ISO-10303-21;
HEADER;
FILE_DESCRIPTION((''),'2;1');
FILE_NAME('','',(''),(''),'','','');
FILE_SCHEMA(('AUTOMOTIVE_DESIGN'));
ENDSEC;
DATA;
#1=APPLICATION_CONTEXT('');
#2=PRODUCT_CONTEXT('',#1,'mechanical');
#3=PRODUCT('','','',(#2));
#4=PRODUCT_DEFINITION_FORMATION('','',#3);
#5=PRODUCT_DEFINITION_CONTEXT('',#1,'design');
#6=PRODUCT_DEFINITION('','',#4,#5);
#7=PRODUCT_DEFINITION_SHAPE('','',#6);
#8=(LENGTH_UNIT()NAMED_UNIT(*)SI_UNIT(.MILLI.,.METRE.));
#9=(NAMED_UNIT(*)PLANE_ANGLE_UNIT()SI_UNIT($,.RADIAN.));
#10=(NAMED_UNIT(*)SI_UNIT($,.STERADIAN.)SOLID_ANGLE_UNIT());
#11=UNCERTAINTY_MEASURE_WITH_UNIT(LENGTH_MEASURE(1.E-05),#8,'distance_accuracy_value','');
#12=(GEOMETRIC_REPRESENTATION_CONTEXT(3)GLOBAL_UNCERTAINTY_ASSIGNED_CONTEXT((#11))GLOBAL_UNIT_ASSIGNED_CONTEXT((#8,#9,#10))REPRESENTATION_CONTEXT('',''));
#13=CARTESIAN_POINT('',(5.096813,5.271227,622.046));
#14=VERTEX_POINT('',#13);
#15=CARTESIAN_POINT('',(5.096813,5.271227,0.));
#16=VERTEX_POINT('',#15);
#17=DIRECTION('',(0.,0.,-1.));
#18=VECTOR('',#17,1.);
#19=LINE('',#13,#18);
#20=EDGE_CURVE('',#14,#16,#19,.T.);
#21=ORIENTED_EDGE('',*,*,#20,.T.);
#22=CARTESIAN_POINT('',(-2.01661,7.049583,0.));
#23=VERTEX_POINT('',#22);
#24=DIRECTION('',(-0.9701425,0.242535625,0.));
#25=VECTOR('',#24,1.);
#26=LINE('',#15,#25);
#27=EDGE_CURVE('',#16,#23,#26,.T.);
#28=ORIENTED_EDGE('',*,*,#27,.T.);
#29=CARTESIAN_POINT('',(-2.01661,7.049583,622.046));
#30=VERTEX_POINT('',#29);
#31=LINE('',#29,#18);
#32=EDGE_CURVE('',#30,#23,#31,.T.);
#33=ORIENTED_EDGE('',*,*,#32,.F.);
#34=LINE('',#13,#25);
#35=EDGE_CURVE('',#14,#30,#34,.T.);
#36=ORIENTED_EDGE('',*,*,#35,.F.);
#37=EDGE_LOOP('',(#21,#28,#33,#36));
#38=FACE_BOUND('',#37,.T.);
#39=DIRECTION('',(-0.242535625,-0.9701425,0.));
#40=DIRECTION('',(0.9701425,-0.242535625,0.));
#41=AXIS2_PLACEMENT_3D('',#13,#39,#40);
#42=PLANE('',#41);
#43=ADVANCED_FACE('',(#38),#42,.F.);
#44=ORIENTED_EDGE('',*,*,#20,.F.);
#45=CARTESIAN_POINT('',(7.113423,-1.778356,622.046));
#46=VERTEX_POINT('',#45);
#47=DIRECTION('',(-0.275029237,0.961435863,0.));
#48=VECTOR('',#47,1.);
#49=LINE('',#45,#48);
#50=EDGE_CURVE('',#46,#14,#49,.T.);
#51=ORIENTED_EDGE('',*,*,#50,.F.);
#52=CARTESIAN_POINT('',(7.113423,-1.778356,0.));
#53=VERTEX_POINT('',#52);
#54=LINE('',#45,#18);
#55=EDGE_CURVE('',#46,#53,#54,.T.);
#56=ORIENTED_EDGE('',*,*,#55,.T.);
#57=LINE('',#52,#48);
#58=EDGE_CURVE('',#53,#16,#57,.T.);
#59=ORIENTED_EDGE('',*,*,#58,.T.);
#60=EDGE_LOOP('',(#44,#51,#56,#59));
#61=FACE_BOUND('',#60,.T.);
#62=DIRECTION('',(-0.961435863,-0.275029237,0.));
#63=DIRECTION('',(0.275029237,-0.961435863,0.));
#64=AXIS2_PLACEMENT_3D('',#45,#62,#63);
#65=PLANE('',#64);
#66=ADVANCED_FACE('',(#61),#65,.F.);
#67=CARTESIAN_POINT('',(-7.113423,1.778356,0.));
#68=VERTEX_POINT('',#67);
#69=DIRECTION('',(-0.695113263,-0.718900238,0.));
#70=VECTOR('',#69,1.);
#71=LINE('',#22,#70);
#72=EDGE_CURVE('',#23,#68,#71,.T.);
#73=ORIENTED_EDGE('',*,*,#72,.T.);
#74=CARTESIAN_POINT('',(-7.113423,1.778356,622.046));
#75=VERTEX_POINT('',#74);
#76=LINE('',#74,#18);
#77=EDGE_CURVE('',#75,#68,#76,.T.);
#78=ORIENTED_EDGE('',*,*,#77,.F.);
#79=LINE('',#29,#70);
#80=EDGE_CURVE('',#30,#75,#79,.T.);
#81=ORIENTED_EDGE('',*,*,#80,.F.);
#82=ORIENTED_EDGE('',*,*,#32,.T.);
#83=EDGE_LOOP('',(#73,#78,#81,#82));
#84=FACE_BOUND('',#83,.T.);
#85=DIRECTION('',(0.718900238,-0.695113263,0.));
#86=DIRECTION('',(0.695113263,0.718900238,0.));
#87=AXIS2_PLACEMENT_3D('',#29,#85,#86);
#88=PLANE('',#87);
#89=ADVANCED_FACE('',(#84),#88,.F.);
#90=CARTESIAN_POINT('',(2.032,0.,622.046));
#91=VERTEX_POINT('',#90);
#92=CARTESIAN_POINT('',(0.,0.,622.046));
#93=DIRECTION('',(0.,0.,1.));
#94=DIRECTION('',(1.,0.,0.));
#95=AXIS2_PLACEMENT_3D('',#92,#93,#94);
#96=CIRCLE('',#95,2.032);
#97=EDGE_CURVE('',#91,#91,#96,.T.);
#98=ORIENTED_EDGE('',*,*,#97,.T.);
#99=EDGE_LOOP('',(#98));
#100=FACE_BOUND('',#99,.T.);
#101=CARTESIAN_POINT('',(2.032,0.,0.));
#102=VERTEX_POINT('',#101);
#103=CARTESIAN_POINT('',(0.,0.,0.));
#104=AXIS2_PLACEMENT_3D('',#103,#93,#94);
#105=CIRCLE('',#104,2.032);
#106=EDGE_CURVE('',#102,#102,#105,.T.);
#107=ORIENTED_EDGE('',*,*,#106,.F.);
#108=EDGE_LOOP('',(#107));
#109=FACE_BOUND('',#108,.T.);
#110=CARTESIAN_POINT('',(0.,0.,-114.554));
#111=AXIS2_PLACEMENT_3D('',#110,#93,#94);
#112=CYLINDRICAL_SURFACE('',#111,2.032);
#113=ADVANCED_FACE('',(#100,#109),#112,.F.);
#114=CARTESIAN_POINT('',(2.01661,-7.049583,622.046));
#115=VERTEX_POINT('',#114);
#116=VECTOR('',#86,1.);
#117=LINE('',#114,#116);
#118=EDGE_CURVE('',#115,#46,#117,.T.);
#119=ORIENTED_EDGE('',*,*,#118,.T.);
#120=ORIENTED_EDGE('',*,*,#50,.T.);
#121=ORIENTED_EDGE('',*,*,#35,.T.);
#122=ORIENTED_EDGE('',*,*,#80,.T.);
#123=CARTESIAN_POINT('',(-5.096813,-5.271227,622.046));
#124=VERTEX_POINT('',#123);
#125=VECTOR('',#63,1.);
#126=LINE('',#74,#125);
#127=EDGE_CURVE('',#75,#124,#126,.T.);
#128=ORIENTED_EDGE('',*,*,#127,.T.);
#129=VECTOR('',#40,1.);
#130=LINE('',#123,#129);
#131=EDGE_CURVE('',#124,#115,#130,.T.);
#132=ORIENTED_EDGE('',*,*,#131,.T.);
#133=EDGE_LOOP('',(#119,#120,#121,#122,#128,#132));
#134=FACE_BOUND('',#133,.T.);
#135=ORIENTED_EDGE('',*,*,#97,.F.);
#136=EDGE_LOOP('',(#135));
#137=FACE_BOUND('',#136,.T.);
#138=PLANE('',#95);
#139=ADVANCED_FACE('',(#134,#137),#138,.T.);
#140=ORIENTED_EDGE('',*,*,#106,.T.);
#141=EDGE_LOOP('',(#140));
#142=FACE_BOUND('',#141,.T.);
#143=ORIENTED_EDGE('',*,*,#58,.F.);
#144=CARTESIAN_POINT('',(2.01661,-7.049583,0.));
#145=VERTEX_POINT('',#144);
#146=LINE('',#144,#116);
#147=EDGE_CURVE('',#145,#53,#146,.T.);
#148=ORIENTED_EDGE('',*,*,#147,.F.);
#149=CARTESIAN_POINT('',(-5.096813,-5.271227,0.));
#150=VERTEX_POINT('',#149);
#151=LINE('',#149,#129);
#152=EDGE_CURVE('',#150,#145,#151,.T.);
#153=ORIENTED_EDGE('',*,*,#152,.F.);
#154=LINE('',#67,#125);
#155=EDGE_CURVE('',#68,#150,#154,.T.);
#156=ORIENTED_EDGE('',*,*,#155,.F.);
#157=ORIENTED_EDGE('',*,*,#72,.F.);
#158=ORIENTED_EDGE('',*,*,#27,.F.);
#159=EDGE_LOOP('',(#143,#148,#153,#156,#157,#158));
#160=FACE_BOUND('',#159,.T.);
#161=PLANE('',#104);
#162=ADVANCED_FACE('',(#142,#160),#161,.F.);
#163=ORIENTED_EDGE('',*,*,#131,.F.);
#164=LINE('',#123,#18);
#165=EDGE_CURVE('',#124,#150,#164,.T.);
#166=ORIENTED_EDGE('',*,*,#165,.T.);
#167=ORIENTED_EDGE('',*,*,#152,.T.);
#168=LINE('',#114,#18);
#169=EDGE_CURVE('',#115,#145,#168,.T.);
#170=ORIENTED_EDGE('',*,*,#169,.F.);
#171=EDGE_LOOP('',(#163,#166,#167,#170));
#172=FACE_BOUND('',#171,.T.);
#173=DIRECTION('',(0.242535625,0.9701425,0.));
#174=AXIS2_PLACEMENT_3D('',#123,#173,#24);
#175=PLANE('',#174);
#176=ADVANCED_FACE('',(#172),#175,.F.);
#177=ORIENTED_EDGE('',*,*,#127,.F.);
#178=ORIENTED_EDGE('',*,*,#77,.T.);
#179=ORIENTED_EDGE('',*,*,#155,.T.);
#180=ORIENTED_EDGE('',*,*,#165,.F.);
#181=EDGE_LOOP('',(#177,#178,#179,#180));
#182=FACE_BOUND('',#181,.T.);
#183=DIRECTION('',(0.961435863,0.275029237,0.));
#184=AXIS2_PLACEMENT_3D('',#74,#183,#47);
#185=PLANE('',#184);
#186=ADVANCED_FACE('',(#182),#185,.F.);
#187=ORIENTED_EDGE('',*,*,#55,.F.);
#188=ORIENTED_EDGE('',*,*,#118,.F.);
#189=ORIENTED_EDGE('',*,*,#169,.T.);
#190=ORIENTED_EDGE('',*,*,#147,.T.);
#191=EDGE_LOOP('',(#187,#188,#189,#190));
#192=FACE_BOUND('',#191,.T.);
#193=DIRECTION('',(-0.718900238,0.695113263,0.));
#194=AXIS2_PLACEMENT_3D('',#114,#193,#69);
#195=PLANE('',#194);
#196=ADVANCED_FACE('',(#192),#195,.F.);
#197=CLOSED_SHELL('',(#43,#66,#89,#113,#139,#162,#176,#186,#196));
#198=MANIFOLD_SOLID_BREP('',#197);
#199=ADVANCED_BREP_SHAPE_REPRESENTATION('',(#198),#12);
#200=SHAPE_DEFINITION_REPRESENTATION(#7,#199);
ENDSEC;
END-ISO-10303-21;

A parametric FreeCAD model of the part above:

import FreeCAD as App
import Part
import Sketcher
Q = App.Units.Quantity

doc = App.newDocument("Part")
params = doc.addObject("Spreadsheet::Sheet", "Params")
for row, (alias, value) in enumerate([
    ("pad1_length", "24.49 in"),
    ("sketch2_diameter", "0.16 in"),
    ("pocket1_length", "29 in"),
], start=1):
    params.set(f"A{row}", alias)
    params.set(f"B{row}", "=" + value)
    params.setAlias(f"B{row}", alias)

body = doc.addObject("PartDesign::Body", "Body")

# Sketch on XY plane
sketch1 = body.newObject("Sketcher::SketchObject", "Sketch")
sketch1.AttachmentSupport = (doc.getObject("XY_Plane"), [""])
sketch1.MapMode = "FlatFace"
sketch1.addGeometry([
    Part.LineSegment(App.Vector(-7, 2, 0), App.Vector(-5, -5, 0)),  # 0
    Part.LineSegment(App.Vector(-5, -5, 0), App.Vector(2, -7, 0)),  # 1
    Part.LineSegment(App.Vector(2, -7, 0), App.Vector(7, -2, 0)),  # 2
    Part.LineSegment(App.Vector(7, -2, 0), App.Vector(5, 5, 0)),  # 3
    Part.LineSegment(App.Vector(5, 5, 0), App.Vector(-2, 7, 0)),  # 4
    Part.LineSegment(App.Vector(-2, 7, 0), App.Vector(-7, 2, 0)),  # 5
], False)
sketch1.addConstraint([
    Sketcher.Constraint("Coincident", 0, 2, 1, 1),
    Sketcher.Constraint("Coincident", 1, 2, 2, 1),
    Sketcher.Constraint("Coincident", 2, 2, 3, 1),
    Sketcher.Constraint("Coincident", 3, 2, 4, 1),
    Sketcher.Constraint("Coincident", 4, 2, 5, 1),
    Sketcher.Constraint("Coincident", 5, 2, 0, 1),
    Sketcher.Constraint("Symmetric", 0, 2, 3, 2, -1, 1),
    Sketcher.Constraint("Symmetric", 1, 2, 4, 2, -1, 1),
    Sketcher.Constraint("Symmetric", 2, 2, 5, 2, -1, 1),
    Sketcher.Constraint("Equal", 0, 1),
    Sketcher.Constraint("Equal", 1, 2),
    Sketcher.Constraint("Distance", 0, 7.332348),
    Sketcher.Constraint("DistanceX", -1, 1, 1, 2, 2.01661),
    Sketcher.Constraint("DistanceY", 0, 2, 2, 2, 3.492871),
    Sketcher.Constraint("DistanceX", 3, 2, 2, 2, 2.01661),
])
pad1 = body.newObject("PartDesign::Pad", "Pad")
pad1.Profile = sketch1
pad1.setExpression("Length", "Params.pad1_length")

# Sketch on XY plane
sketch2 = body.newObject("Sketcher::SketchObject", "Sketch001")
sketch2.AttachmentSupport = (doc.getObject("XY_Plane"), [""])
sketch2.MapMode = "FlatFace"
sketch2.AttachmentOffset = App.Placement(App.Vector(0, 0, 24.49 * 25.4), App.Rotation())
sketch2.addGeometry(Part.Circle(App.Vector(0, 0, 0), App.Vector(0, 0, 1), 2), False)
sketch2.addConstraint([
    Sketcher.Constraint("Coincident", 0, 3, -1, 1),
    Sketcher.Constraint("Diameter", 0, Q("0.16 in")),
])
sketch2.setExpression("Constraints[1]", "Params.sketch2_diameter")
pocket1 = body.newObject("PartDesign::Pocket", "Pocket")
pocket1.Profile = sketch2
pocket1.setExpression("Length", "Params.pocket1_length")

doc.recompute()
